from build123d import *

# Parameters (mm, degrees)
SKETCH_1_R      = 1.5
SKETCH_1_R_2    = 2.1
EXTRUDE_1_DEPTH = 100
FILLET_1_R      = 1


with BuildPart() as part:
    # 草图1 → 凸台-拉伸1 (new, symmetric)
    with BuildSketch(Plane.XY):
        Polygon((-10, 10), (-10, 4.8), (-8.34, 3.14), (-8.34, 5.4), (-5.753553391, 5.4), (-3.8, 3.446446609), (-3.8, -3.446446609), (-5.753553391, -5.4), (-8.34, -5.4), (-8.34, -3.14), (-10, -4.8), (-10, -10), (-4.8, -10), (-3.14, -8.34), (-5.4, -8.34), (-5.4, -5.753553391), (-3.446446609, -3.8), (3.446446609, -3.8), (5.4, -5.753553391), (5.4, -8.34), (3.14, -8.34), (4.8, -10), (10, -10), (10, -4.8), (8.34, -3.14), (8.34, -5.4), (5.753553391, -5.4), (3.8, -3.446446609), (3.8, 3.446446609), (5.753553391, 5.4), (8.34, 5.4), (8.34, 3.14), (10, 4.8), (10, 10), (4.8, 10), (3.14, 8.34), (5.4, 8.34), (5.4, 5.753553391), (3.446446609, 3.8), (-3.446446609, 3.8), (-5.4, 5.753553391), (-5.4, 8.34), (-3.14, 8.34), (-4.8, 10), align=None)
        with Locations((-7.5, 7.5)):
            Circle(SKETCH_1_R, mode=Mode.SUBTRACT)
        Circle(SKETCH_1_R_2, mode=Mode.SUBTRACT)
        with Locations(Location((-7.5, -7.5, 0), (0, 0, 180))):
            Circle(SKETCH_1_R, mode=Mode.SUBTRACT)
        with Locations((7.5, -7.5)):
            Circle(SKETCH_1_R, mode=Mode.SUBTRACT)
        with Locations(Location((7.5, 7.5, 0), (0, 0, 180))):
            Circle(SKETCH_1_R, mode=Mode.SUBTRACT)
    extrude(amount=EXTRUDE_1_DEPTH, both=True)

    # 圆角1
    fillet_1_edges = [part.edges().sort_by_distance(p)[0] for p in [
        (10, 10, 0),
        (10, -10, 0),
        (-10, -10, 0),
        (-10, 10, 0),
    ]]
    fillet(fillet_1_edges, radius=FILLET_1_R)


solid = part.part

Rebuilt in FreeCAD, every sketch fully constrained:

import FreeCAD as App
import Part
import Sketcher

V = App.Vector
Q = App.Units.Quantity


def edges_at(feature, points):
    """Names of the edges that pass closest to the given points."""
    edges = feature.Shape.Edges
    near = lambda p: min(range(len(edges)), key=lambda i: edges[i].distToShape(Part.Vertex(*p))[0])
    return sorted({f"Edge{near(p) + 1}" for p in points})


def add_polygon(sketch, points):
    """Adds a closed chain of lines whose ends are joined by coincident constraints."""
    first, n = sketch.GeometryCount, len(points)
    for a, b in zip(points, points[1:] + points[:1]):
        sketch.addGeometry(Part.LineSegment(App.Vector(*a, 0), App.Vector(*b, 0)), False)
    for i in range(n):
        sketch.addConstraint(Sketcher.Constraint("Coincident", first + i, 2, first + (i + 1) % n, 1))

doc = App.newDocument("Part")
body = doc.addObject("PartDesign::Body", "Body")

# Sketch on XY plane
sketch1 = body.newObject("Sketcher::SketchObject", "Sketch")
sketch1.AttachmentSupport = (doc.getObject("XY_Plane"), [""])
sketch1.MapMode = "FlatFace"
add_polygon(sketch1, [(-10, 10), (-10, 4.8), (-8.34, 3.14), (-8.34, 5.4), (-5.753553, 5.4), (-3.8, 3.446447), (-3.8, -3.446447), (-5.753553, -5.4), (-8.34, -5.4), (-8.34, -3.14), (-10, -4.8), (-10, -10), (-4.8, -10), (-3.14, -8.34), (-5.4, -8.34), (-5.4, -5.753553), (-3.446447, -3.8), (3.446447, -3.8), (5.4, -5.753553), (5.4, -8.34), (3.14, -8.34), (4.8, -10), (10, -10), (10, -4.8), (8.34, -3.14), (8.34, -5.4), (5.753553, -5.4), (3.8, -3.446447), (3.8, 3.446447), (5.753553, 5.4), (8.34, 5.4), (8.34, 3.14), (10, 4.8), (10, 10), (4.8, 10), (3.14, 8.34), (5.4, 8.34), (5.4, 5.753553), (3.446447, 3.8), (-3.446447, 3.8), (-5.4, 5.753553), (-5.4, 8.34), (-3.14, 8.34), (-4.8, 10)])  # lines 0-43
sketch1.addGeometry(Part.Circle(V(-7.5, -7.5, 0), V(0, 0, 1), 1.5), False)  # 44
sketch1.addGeometry(Part.Circle(V(7.5, -7.5, 0), V(0, 0, 1), 1.5), False)  # 45
sketch1.addGeometry(Part.Circle(V(-7.5, 7.5, 0), V(0, 0, 1), 1.5), False)  # 46
sketch1.addGeometry(Part.Circle(V(0, 0, 0), V(0, 0, 1), 2.1), False)  # 47
sketch1.addGeometry(Part.Circle(V(7.5, 7.5, 0), V(0, 0, 1), 1.5), False)  # 48
sketch1.addConstraint([
    Sketcher.Constraint("Vertical", 0),
    Sketcher.Constraint("Vertical", 2),
    Sketcher.Constraint("Horizontal", 3),
    Sketcher.Constraint("Vertical", 5),
    Sketcher.Constraint("Horizontal", 7),
    Sketcher.Constraint("Vertical", 8),
    Sketcher.Constraint("Vertical", 10),
    Sketcher.Constraint("Horizontal", 11),
    Sketcher.Constraint("Horizontal", 13),
    Sketcher.Constraint("Vertical", 14),
    Sketcher.Constraint("Horizontal", 16),
    Sketcher.Constraint("Vertical", 18),
    Sketcher.Constraint("Horizontal", 19),
    Sketcher.Constraint("Horizontal", 21),
    Sketcher.Constraint("Vertical", 22),
    Sketcher.Constraint("Vertical", 24),
    Sketcher.Constraint("Horizontal", 25),
    Sketcher.Constraint("Vertical", 27),
    Sketcher.Constraint("Horizontal", 29),
    Sketcher.Constraint("Vertical", 30),
    Sketcher.Constraint("Vertical", 32),
    Sketcher.Constraint("Horizontal", 33),
    Sketcher.Constraint("Horizontal", 35),
    Sketcher.Constraint("Vertical", 36),
    Sketcher.Constraint("Horizontal", 38),
    Sketcher.Constraint("Vertical", 40),
    Sketcher.Constraint("Horizontal", 41),
    Sketcher.Constraint("Horizontal", 43),
    Sketcher.Constraint("Coincident", 47, 3, -1, 1),
    Sketcher.Constraint("Equal", 44, 45),
    Sketcher.Constraint("Equal", 45, 46),
    Sketcher.Constraint("Equal", 46, 48),
    Sketcher.Constraint("Symmetric", 45, 3, 46, 3, -1, 1),
    Sketcher.Constraint("Symmetric", 44, 3, 48, 3, -1, 1),
    Sketcher.Constraint("Symmetric", 0, 2, 22, 2, -1, 1),
    Sketcher.Constraint("Symmetric", 1, 2, 23, 2, -1, 1),
    Sketcher.Constraint("Symmetric", 3, 2, 25, 2, -1, 1),
    Sketcher.Constraint("Symmetric", 4, 2, 26, 2, -1, 1),
    Sketcher.Constraint("Symmetric", 6, 2, 28, 2, -1, 1),
    Sketcher.Constraint("Symmetric", 8, 2, 30, 2, -1, 1),
    Sketcher.Constraint("Symmetric", 9, 2, 31, 2, -1, 1),
    Sketcher.Constraint("Symmetric", 11, 2, 33, 2, -1, 1),
    Sketcher.Constraint("Symmetric", 12, 2, 34, 2, -1, 1),
    Sketcher.Constraint("Symmetric", 14, 2, 36, 2, -1, 1),
    Sketcher.Constraint("Symmetric", 15, 2, 37, 2, -1, 1),
    Sketcher.Constraint("Symmetric", 17, 2, 39, 2, -1, 1),
    Sketcher.Constraint("Symmetric", 19, 2, 41, 2, -1, 1),
    Sketcher.Constraint("Symmetric", 20, 2, 42, 2, -1, 1),
    Sketcher.Constraint("Symmetric", 44, 3, 45, 3, -2),
    Sketcher.Constraint("Symmetric", 14, 2, 17, 2, -2),
    Sketcher.Constraint("Symmetric", 12, 2, 19, 2, -2),
    Sketcher.Constraint("Symmetric", 11, 2, 20, 2, -2),
    Sketcher.Constraint("Symmetric", 9, 2, 22, 2, -2),
    Sketcher.Constraint("Symmetric", 8, 2, 23, 2, -2),
    Sketcher.Constraint("Symmetric", 6, 2, 25, 2, -2),
    Sketcher.Constraint("Parallel", 1, 4),
    Sketcher.Constraint("Perpendicular", 4, 6),
    Sketcher.Constraint("Parallel", 6, 9),
    Sketcher.Constraint("Parallel", 9, 12),
    Sketcher.Constraint("Parallel", 12, 15),
    Sketcher.Constraint("Perpendicular", 15, 17),
    Sketcher.Constraint("Perpendicular", 26, 28),
    Sketcher.Constraint("Perpendicular", 37, 39),
    Sketcher.Constraint("Equal", 43, 0),
    Sketcher.Constraint("Equal", 41, 2),
    Sketcher.Constraint("Equal", 38, 5),
    Sketcher.Constraint("Equal", 29, 14),
    Sketcher.Constraint("Equal", 9, 12),
    Sketcher.Constraint("Equal", 6, 15),
    Sketcher.Constraint("Diameter", 44, Q("3 mm")),
    Sketcher.Constraint("Diameter", 47, Q("4.2 mm")),
    Sketcher.Constraint("DistanceX", 11, 1, 11, 2, Q("5.2 mm")),
    Sketcher.Constraint("DistanceX", 0, 2, -1, 1, Q("10 mm")),
    Sketcher.Constraint("DistanceX", 44, 3, 45, 3, Q("15 mm")),
    Sketcher.Constraint("DistanceY", 44, 3, 46, 3, Q("15 mm")),
    Sketcher.Constraint("DistanceX", 11, 2, 5, 2, Q("1 mm")),
    Sketcher.Constraint("DistanceX", 13, 2, 13, 1, Q("2.26 mm")),
    Sketcher.Constraint("DistanceY", -1, 1, 2, 2, Q("5.4 mm")),
    Sketcher.Constraint("Distance", 4, Q("2.762742 mm")),
])
pad1 = body.newObject("PartDesign::Pad", "Pad")
pad1.Profile = sketch1
pad1.Length = 200
pad1.Midplane = True
doc.recompute()

fillet = body.newObject("PartDesign::Fillet", "Fillet")
fillet.Base = (pad1, edges_at(pad1, [
    (10, 10, 0),
    (10, -10, 0),
    (-10, -10, 0),
    (-10, 10, 0),
]))
fillet.Radius = 1

doc.recompute()
